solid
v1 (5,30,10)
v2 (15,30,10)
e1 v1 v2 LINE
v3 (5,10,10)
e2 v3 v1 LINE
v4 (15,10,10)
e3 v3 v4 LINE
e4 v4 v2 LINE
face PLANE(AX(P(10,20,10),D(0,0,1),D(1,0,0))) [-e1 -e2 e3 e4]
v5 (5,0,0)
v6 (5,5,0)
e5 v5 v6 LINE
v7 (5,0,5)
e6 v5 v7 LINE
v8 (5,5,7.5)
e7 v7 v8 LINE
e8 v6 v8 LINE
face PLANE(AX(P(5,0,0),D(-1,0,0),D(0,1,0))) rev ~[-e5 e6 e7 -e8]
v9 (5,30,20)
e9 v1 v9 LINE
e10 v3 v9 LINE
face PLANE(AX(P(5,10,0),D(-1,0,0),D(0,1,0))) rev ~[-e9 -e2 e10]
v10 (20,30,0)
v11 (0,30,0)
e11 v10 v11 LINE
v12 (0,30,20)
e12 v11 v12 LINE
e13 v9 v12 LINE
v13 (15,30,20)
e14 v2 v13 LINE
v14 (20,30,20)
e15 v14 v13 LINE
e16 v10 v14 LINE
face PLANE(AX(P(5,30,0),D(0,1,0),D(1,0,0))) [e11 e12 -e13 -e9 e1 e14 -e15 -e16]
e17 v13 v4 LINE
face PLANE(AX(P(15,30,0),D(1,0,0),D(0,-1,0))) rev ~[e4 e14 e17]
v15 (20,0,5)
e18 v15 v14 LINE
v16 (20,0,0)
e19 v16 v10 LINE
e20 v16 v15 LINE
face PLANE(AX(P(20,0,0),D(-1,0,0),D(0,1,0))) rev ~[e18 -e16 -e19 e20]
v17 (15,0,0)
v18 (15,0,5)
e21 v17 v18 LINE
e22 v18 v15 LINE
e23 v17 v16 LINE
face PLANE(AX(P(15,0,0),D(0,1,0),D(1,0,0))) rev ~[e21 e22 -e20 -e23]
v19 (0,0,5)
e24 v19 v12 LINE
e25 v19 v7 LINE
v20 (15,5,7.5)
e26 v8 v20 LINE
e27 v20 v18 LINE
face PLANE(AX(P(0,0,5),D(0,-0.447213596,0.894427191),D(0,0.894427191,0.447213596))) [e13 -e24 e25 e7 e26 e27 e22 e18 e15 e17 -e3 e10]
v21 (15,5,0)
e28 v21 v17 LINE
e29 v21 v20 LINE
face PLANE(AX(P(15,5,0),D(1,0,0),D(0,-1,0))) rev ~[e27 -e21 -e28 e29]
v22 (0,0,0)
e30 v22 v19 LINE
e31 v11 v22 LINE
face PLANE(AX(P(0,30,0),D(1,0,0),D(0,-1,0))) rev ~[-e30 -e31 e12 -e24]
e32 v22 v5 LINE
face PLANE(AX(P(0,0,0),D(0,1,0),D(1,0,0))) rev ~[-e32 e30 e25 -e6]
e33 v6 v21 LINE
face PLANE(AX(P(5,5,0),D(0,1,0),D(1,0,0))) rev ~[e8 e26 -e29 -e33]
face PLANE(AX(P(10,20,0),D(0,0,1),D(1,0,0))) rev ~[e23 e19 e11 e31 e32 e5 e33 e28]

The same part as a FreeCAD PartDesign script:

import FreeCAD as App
import Part
import Sketcher

V = App.Vector
Q = App.Units.Quantity

doc = App.newDocument("Part")
body = doc.addObject("PartDesign::Body", "Body")

sketch1 = body.newObject("Sketcher::SketchObject", "Sketch")
sketch1.AttachmentSupport = (doc.getObject("XY_Plane"), [""])
sketch1.MapMode = "FlatFace"
sketch1.addGeometry([
    Part.LineSegment(V(0, 30, 0), V(0, 0, 0)),
    Part.LineSegment(V(0, 0, 0), V(5, 0, 0)),
    Part.LineSegment(V(5, 0, 0), V(5, 5, 0)),
    Part.LineSegment(V(5, 5, 0), V(15, 5, 0)),
    Part.LineSegment(V(15, 5, 0), V(15, 0, 0)),
    Part.LineSegment(V(15, 0, 0), V(20, 0, 0)),
    Part.LineSegment(V(20, 0, 0), V(20, 30, 0)),
    Part.LineSegment(V(20, 30, 0), V(15, 30, 0)),
    Part.LineSegment(V(15, 30, 0), V(15, 10, 0)),
    Part.LineSegment(V(15, 10, 0), V(5, 10, 0)),
    Part.LineSegment(V(5, 10, 0), V(5, 30, 0)),
    Part.LineSegment(V(5, 30, 0), V(0, 30, 0)),
], False)
sketch1.addConstraint([
    Sketcher.Constraint("Coincident", 0, 2, 1, 1),
    Sketcher.Constraint("Coincident", 1, 2, 2, 1),
    Sketcher.Constraint("Coincident", 2, 2, 3, 1),
    Sketcher.Constraint("Coincident", 3, 2, 4, 1),
    Sketcher.Constraint("Coincident", 4, 2, 5, 1),
    Sketcher.Constraint("Coincident", 5, 2, 6, 1),
    Sketcher.Constraint("Coincident", 6, 2, 7, 1),
    Sketcher.Constraint("Coincident", 7, 2, 8, 1),
    Sketcher.Constraint("Coincident", 8, 2, 9, 1),
    Sketcher.Constraint("Coincident", 9, 2, 10, 1),
    Sketcher.Constraint("Coincident", 10, 2, 11, 1),
    Sketcher.Constraint("Coincident", 11, 2, 0, 1),
    Sketcher.Constraint("Vertical", 0),
    Sketcher.Constraint("Horizontal", 1),
    Sketcher.Constraint("Vertical", 2),
    Sketcher.Constraint("Horizontal", 3),
    Sketcher.Constraint("Vertical", 4),
    Sketcher.Constraint("Horizontal", 5),
    Sketcher.Constraint("Vertical", 6),
    Sketcher.Constraint("Horizontal", 7),
    Sketcher.Constraint("Vertical", 8),
    Sketcher.Constraint("Horizontal", 9),
    Sketcher.Constraint("Vertical", 10),
    Sketcher.Constraint("Horizontal", 11),
    Sketcher.Constraint("Coincident", 0, 2, -1, 1),
    Sketcher.Constraint("PointOnObject", 4, 2, -1),
    Sketcher.Constraint("Horizontal", 7, 2, 10, 2),
    Sketcher.Constraint("Vertical", 4, 2, 7, 2),
    Sketcher.Constraint("Vertical", 2, 2, 9, 2),
    Sketcher.Constraint("Equal", 1, 5),
    Sketcher.Constraint("Equal", 11, 2),
    Sketcher.Constraint("DistanceX", 1, 1, 1, 2, Q("5 mm")),
    Sketcher.Constraint("DistanceX", 3, 1, 3, 2, Q("10 mm")),
    Sketcher.Constraint("DistanceY", 0, 2, 0, 1, Q("30 mm")),
    Sketcher.Constraint("DistanceY", 8, 2, 8, 1, Q("20 mm")),
])
pad1 = body.newObject("PartDesign::Pad", "Pad")
pad1.Profile = sketch1
pad1.Length = 20

sketch2 = body.newObject("Sketcher::SketchObject", "Sketch001")
sketch2.AttachmentSupport = (doc.getObject("XY_Plane"), [""])
sketch2.MapMode = "FlatFace"
sketch2.addGeometry([
    Part.LineSegment(V(5, 30, 0), V(5, 10, 0)),
    Part.LineSegment(V(5, 10, 0), V(15, 10, 0)),
    Part.LineSegment(V(15, 10, 0), V(15, 30, 0)),
    Part.LineSegment(V(15, 30, 0), V(5, 30, 0)),
], False)
sketch2.addConstraint([
    Sketcher.Constraint("Coincident", 0, 2, 1, 1),
    Sketcher.Constraint("Coincident", 1, 2, 2, 1),
    Sketcher.Constraint("Coincident", 2, 2, 3, 1),
    Sketcher.Constraint("Coincident", 3, 2, 0, 1),
    Sketcher.Constraint("Vertical", 0),
    Sketcher.Constraint("Horizontal", 1),
    Sketcher.Constraint("Vertical", 2),
    Sketcher.Constraint("Horizontal", 3),
    Sketcher.Constraint("DistanceX", 1, 1, 1, 2, Q("10 mm")),
    Sketcher.Constraint("DistanceY", 0, 2, 0, 1, Q("20 mm")),
    Sketcher.Constraint("DistanceX", -1, 1, 0, 2, Q("5 mm")),
    Sketcher.Constraint("DistanceY", -1, 1, 0, 2, Q("10 mm")),
])
pad2 = body.newObject("PartDesign::Pad", "Pad001")
pad2.Profile = sketch2
pad2.Length = 10

sketch3 = body.newObject("Sketcher::SketchObject", "Sketch002")
sketch3.AttachmentSupport = (doc.getObject("YZ_Plane"), [""])
sketch3.MapMode = "FlatFace"
sketch3.addGeometry([
    Part.LineSegment(V(0, 20, 0), V(0, 5, 0)),
    Part.LineSegment(V(0, 5, 0), V(30, 20, 0)),
    Part.LineSegment(V(30, 20, 0), V(0, 20, 0)),
], False)
sketch3.addConstraint([
    Sketcher.Constraint("Coincident", 0, 2, 1, 1),
    Sketcher.Constraint("Coincident", 1, 2, 2, 1),
    Sketcher.Constraint("Coincident", 2, 2, 0, 1),
    Sketcher.Constraint("Vertical", 0),
    Sketcher.Constraint("Horizontal", 2),
    Sketcher.Constraint("PointOnObject", 0, 2, -2),
    Sketcher.Constraint("DistanceX", 2, 2, 2, 1, Q("30 mm")),
    Sketcher.Constraint("DistanceY", 0, 2, 0, 1, Q("15 mm")),
    Sketcher.Constraint("DistanceY", -1, 1, 0, 2, Q("5 mm")),
])
pocket1 = body.newObject("PartDesign::Pocket", "Pocket")
pocket1.Profile = sketch3
pocket1.Type = "ThroughAll"
pocket1.Reversed = True

doc.recompute()
